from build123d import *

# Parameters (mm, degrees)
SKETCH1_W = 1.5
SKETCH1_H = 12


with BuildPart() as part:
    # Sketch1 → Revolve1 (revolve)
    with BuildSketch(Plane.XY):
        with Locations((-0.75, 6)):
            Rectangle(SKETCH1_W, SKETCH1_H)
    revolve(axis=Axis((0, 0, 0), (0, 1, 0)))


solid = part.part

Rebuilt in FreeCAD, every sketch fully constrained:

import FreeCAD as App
import Part
import Sketcher

V = App.Vector

doc = App.newDocument("Part")
body = doc.addObject("PartDesign::Body", "Body")

sketch1 = body.newObject("Sketcher::SketchObject", "Sketch")
sketch1.AttachmentSupport = (doc.getObject("XY_Plane"), [""])
sketch1.MapMode = "FlatFace"
sketch1.addGeometry([
    Part.LineSegment(V(-1.5, 12, 0), V(-1.5, 0, 0)),
    Part.LineSegment(V(-1.5, 0, 0), V(0, 0, 0)),
    Part.LineSegment(V(0, 0, 0), V(0, 12, 0)),
    Part.LineSegment(V(0, 12, 0), V(-1.5, 12, 0)),
], False)
sketch1.addConstraint([
    Sketcher.Constraint("Coincident", 0, 2, 1, 1),
    Sketcher.Constraint("Coincident", 1, 2, 2, 1),
    Sketcher.Constraint("Coincident", 2, 2, 3, 1),
    Sketcher.Constraint("Coincident", 3, 2, 0, 1),
    Sketcher.Constraint("Vertical", 0),
    Sketcher.Constraint("Horizontal", 1),
    Sketcher.Constraint("Vertical", 2),
    Sketcher.Constraint("Horizontal", 3),
    Sketcher.Constraint("Coincident", 1, 2, -1, 1),
    Sketcher.Constraint("DistanceY", 0, 2, 0, 1, 12.0),
    Sketcher.Constraint("DistanceX", 1, 1, 1, 2, 1.5),
])
revolution = body.newObject("PartDesign::Revolution", "Revolution")
revolution.Profile = sketch1
revolution.ReferenceAxis = (sketch1, ["V_Axis"])
revolution.Angle = 360

doc.recompute()
